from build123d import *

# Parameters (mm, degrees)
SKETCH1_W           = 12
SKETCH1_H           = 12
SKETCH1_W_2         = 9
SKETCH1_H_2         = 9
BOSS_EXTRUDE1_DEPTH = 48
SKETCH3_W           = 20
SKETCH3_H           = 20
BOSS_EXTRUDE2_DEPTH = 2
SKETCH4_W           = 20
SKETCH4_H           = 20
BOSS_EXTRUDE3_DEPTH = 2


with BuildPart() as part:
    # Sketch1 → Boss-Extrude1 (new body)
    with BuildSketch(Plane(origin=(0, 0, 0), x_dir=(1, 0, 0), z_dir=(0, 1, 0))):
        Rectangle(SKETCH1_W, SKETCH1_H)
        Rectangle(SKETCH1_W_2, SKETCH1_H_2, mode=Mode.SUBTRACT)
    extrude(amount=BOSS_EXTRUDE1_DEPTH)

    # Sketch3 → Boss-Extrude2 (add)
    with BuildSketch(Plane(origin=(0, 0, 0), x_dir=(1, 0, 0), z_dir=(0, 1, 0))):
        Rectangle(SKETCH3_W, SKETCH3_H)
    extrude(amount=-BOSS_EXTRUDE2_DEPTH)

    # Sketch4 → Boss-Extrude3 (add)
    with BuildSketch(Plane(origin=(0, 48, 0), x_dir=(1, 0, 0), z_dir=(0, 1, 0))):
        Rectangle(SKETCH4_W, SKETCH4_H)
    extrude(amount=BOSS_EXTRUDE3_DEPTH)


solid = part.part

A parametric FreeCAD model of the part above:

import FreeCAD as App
import Part
import Sketcher

V = App.Vector
Q = App.Units.Quantity


def add_polygon(sketch, points):
    """Adds a closed chain of lines whose ends are joined by coincident constraints."""
    first, n = sketch.GeometryCount, len(points)
    for a, b in zip(points, points[1:] + points[:1]):
        sketch.addGeometry(Part.LineSegment(App.Vector(*a, 0), App.Vector(*b, 0)), False)
    for i in range(n):
        sketch.addConstraint(Sketcher.Constraint("Coincident", first + i, 2, first + (i + 1) % n, 1))

doc = App.newDocument("Part")
body = doc.addObject("PartDesign::Body", "Body")

sketch1 = doc.addObject("Sketcher::SketchObject", "Sketch")
body.addObject(sketch1)
sketch1.AttachmentSupport = (doc.XZ_Plane, [""])
sketch1.MapMode = "FlatFace"
add_polygon(sketch1, [(-6, -6), (-6, 6), (6, 6), (6, -6)])
add_polygon(sketch1, [(4.5, 4.5), (-4.5, 4.5), (-4.5, -4.5), (4.5, -4.5)])
sketch1.addConstraint([
    Sketcher.Constraint("Vertical", 0),
    Sketcher.Constraint("Horizontal", 1),
    Sketcher.Constraint("Vertical", 2),
    Sketcher.Constraint("Horizontal", 3),
    Sketcher.Constraint("Horizontal", 4),
    Sketcher.Constraint("Vertical", 5),
    Sketcher.Constraint("Horizontal", 6),
    Sketcher.Constraint("Vertical", 7),
    Sketcher.Constraint("Symmetric", 0, 2, 2, 2, -1, 1),
    Sketcher.Constraint("Symmetric", 4, 2, 6, 2, -1, 1),
    Sketcher.Constraint("Equal", 3, 0),
    Sketcher.Constraint("Equal", 6, 5),
    Sketcher.Constraint("DistanceX", 1, 1, 1, 2, Q("12 mm")),
    Sketcher.Constraint("DistanceX", 4, 2, 4, 1, Q("9 mm")),
])
pad1 = doc.addObject("PartDesign::Pad", "Pad")
body.addObject(pad1)
pad1.Profile = sketch1
pad1.Length = 48
pad1.Reversed = True

sketch2 = doc.addObject("Sketcher::SketchObject", "Sketch001")
body.addObject(sketch2)
sketch2.AttachmentSupport = (doc.XZ_Plane, [""])
sketch2.MapMode = "FlatFace"
add_polygon(sketch2, [(-10, -10), (-10, 10), (10, 10), (10, -10)])
sketch2.addConstraint([
    Sketcher.Constraint("Vertical", 0),
    Sketcher.Constraint("Horizontal", 1),
    Sketcher.Constraint("Vertical", 2),
    Sketcher.Constraint("Horizontal", 3),
    Sketcher.Constraint("Symmetric", 0, 2, 2, 2, -1, 1),
    Sketcher.Constraint("Equal", 3, 0),
    Sketcher.Constraint("DistanceX", 1, 1, 1, 2, Q("20 mm")),
])
pad2 = doc.addObject("PartDesign::Pad", "Pad001")
body.addObject(pad2)
pad2.Profile = sketch2
pad2.Length = 2

sketch3 = doc.addObject("Sketcher::SketchObject", "Sketch002")
body.addObject(sketch3)
sketch3.AttachmentSupport = (doc.XZ_Plane, [""])
sketch3.MapMode = "FlatFace"
sketch3.AttachmentOffset = App.Placement(V(0, 0, -48), App.Rotation())
add_polygon(sketch3, [(-10, -10), (-10, 10), (10, 10), (10, -10)])
sketch3.addConstraint([
    Sketcher.Constraint("Vertical", 0),
    Sketcher.Constraint("Horizontal", 1),
    Sketcher.Constraint("Vertical", 2),
    Sketcher.Constraint("Horizontal", 3),
    Sketcher.Constraint("Symmetric", 0, 2, 2, 2, -1, 1),
    Sketcher.Constraint("Equal", 3, 0),
    Sketcher.Constraint("DistanceX", 1, 1, 1, 2, Q("20 mm")),
])
pad3 = doc.addObject("PartDesign::Pad", "Pad002")
body.addObject(pad3)
pad3.Profile = sketch3
pad3.Length = 2
pad3.Reversed = True

doc.recompute()
